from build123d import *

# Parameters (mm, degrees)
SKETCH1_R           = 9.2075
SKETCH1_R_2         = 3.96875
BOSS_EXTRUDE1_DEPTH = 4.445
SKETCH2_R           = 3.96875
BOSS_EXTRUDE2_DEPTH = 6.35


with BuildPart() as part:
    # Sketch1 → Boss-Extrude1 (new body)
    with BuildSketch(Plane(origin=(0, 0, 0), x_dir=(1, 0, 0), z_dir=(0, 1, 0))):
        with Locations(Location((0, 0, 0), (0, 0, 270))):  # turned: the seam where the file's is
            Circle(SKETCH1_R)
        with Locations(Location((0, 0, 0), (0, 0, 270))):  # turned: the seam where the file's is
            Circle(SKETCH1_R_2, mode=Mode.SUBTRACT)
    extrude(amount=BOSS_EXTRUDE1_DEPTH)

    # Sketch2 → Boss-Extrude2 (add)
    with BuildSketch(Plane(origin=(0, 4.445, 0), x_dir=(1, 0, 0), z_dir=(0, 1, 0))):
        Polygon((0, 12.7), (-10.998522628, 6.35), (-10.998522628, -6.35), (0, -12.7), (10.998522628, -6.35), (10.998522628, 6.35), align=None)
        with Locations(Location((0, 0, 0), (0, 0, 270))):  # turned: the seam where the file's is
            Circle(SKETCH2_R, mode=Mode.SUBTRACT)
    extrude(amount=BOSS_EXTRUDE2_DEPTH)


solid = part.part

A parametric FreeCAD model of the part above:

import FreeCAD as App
import Part
import Sketcher
Q = App.Units.Quantity

doc = App.newDocument("Part")
body = doc.addObject("PartDesign::Body", "Body")

# Sketch on XZ plane
sketch1 = doc.addObject("Sketcher::SketchObject", "Sketch")
body.addObject(sketch1)
sketch1.AttachmentSupport = (doc.XZ_Plane, [""])
sketch1.MapMode = "FlatFace"
sketch1.addGeometry([
    Part.Circle(App.Vector(0, 0, 0), App.Vector(0, 0, 1), 9.2075),
    Part.Circle(App.Vector(0, 0, 0), App.Vector(0, 0, 1), 3.96875),
], False)
sketch1.addConstraint([
    Sketcher.Constraint("Coincident", 0, 3, -1, 1),
    Sketcher.Constraint("Coincident", 1, 3, -1, 1),
    Sketcher.Constraint("Diameter", 0, Q("0.725 in")),
    Sketcher.Constraint("Diameter", 1, Q("0.3125 in")),
])
pad1 = doc.addObject("PartDesign::Pad", "Pad")
body.addObject(pad1)
pad1.Profile = sketch1
pad1.Length = Q("0.175 in")
pad1.Reversed = True

# Sketch on XZ plane
sketch2 = doc.addObject("Sketcher::SketchObject", "Sketch001")
body.addObject(sketch2)
sketch2.AttachmentSupport = (doc.XZ_Plane, [""])
sketch2.MapMode = "FlatFace"
sketch2.AttachmentOffset = App.Placement(App.Vector(0, 0, -0.175 * 25.4), App.Rotation())
sketch2.addGeometry([
    Part.LineSegment(App.Vector(0, -12.7, 0), App.Vector(-10.998523, -6.35, 0)),  # 0
    Part.LineSegment(App.Vector(-10.998523, -6.35, 0), App.Vector(-10.998523, 6.35, 0)),  # 1
    Part.LineSegment(App.Vector(-10.998523, 6.35, 0), App.Vector(0, 12.7, 0)),  # 2
    Part.LineSegment(App.Vector(0, 12.7, 0), App.Vector(10.998523, 6.35, 0)),  # 3
    Part.LineSegment(App.Vector(10.998523, 6.35, 0), App.Vector(10.998523, -6.35, 0)),  # 4
    Part.LineSegment(App.Vector(10.998523, -6.35, 0), App.Vector(0, -12.7, 0)),  # 5
    Part.Circle(App.Vector(0, 0, 0), App.Vector(0, 0, 1), 3.96875),  # 6
], False)
sketch2.addConstraint([
    Sketcher.Constraint("Coincident", 0, 2, 1, 1),
    Sketcher.Constraint("Coincident", 1, 2, 2, 1),
    Sketcher.Constraint("Coincident", 2, 2, 3, 1),
    Sketcher.Constraint("Coincident", 3, 2, 4, 1),
    Sketcher.Constraint("Coincident", 4, 2, 5, 1),
    Sketcher.Constraint("Coincident", 5, 2, 0, 1),
    Sketcher.Constraint("Vertical", 1),
    Sketcher.Constraint("Vertical", 4),
    Sketcher.Constraint("Coincident", 6, 3, -1, 1),
    Sketcher.Constraint("Symmetric", 0, 2, 3, 2, -1, 1),
    Sketcher.Constraint("Symmetric", 2, 2, 5, 2, -1, 1),
    Sketcher.Constraint("PointOnObject", 2, 2, -2),
    Sketcher.Constraint("Parallel", 2, 5),
    Sketcher.Constraint("Horizontal", 1, 2, 3, 2),
    Sketcher.Constraint("Diameter", 6, Q("0.3125 in")),
    Sketcher.Constraint("DistanceY", 1, 1, 1, 2, Q("0.5 in")),
    Sketcher.Constraint("Angle", 0, Q("150 deg")),
    Sketcher.Constraint("Distance", 0, Q("0.5 in")),
])
pad2 = doc.addObject("PartDesign::Pad", "Pad001")
body.addObject(pad2)
pad2.Profile = sketch2
pad2.Length = Q("0.25 in")
pad2.Reversed = True

doc.recompute()
